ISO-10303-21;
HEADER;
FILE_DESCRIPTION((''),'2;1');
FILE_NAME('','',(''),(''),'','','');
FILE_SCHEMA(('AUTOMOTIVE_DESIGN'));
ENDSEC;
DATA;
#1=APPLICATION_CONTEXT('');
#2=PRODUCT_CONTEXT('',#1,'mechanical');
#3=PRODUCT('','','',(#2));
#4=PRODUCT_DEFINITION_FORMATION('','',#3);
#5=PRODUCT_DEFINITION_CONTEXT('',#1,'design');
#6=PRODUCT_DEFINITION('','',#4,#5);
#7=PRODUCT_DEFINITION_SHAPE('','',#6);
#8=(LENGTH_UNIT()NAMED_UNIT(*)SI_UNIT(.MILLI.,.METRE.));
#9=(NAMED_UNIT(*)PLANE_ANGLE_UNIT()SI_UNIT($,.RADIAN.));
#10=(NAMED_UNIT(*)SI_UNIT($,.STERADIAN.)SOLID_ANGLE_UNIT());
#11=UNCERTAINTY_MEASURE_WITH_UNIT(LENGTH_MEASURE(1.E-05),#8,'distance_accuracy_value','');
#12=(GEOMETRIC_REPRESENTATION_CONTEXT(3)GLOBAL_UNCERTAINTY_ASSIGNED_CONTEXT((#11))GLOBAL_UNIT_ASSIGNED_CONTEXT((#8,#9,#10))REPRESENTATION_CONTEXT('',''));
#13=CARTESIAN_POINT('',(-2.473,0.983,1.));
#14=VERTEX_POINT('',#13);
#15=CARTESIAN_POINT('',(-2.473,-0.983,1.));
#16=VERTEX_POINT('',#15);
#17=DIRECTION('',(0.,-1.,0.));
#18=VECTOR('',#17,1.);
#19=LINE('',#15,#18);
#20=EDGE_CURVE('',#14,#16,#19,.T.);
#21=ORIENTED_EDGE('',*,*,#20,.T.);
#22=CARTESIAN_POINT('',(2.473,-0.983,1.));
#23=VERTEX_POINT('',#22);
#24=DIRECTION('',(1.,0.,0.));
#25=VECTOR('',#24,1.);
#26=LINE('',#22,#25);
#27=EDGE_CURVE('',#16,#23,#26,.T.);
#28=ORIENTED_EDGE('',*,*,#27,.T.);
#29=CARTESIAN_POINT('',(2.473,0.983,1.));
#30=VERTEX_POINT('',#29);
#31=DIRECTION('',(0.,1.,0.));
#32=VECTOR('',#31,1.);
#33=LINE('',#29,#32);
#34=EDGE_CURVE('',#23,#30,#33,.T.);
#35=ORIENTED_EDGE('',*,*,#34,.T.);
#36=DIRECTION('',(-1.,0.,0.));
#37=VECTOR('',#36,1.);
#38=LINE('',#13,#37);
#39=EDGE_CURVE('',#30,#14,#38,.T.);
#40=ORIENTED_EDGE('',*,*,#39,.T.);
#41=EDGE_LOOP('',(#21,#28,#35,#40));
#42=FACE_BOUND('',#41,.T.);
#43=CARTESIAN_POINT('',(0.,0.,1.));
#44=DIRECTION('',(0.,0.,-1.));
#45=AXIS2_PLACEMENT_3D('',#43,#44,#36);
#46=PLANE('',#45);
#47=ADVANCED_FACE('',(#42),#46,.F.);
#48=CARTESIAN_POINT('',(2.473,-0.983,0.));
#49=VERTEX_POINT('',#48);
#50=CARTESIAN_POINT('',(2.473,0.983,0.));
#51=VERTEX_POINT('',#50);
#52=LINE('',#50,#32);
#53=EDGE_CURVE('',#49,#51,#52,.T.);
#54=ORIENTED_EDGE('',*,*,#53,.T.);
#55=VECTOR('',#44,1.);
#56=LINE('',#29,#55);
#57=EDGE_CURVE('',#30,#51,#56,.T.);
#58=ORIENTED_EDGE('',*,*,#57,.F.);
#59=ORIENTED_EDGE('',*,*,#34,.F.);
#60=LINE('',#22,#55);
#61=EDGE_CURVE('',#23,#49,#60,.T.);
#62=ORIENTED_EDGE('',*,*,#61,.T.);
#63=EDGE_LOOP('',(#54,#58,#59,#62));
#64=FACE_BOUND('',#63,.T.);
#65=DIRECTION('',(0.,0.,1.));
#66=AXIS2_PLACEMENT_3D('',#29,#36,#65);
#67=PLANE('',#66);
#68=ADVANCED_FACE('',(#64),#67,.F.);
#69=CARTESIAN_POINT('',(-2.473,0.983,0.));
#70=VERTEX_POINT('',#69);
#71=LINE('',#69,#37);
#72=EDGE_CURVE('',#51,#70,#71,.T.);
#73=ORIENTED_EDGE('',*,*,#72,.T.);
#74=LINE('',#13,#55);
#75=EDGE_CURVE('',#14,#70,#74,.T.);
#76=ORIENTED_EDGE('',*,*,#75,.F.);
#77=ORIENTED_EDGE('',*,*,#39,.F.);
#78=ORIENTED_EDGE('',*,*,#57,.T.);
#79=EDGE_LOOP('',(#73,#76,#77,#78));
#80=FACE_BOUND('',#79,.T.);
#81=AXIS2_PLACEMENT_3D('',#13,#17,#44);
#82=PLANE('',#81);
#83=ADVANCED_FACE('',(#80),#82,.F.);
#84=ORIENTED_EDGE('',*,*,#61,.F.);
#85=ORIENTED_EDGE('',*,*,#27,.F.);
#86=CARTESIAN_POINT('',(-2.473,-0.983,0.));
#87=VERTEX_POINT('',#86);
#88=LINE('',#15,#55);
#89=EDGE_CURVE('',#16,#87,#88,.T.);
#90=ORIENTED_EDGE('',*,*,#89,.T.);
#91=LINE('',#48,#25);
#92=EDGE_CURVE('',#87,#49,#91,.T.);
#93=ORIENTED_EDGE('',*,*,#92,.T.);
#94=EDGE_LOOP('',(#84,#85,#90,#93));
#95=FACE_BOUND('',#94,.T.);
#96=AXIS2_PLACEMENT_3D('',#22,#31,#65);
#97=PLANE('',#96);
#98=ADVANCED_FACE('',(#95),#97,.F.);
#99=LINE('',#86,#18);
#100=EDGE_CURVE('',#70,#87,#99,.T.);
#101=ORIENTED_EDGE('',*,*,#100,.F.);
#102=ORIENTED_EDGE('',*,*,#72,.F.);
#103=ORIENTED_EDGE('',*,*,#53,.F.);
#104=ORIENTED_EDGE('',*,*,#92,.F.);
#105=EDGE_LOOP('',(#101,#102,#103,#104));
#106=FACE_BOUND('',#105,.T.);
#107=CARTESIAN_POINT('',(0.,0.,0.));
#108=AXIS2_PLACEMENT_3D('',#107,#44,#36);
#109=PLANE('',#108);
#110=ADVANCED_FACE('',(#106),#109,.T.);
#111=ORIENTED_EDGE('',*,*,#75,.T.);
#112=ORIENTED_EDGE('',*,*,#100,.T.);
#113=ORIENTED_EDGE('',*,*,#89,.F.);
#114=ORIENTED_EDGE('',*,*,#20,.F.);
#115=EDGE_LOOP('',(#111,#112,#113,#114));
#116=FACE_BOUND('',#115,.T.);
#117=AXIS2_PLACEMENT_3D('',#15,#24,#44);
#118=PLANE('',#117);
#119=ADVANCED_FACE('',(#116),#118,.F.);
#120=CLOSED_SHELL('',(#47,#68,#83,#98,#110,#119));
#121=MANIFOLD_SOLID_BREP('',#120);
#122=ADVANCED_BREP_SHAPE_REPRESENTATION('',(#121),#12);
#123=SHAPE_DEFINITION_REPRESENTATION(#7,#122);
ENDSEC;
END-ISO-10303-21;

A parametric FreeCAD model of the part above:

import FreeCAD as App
import Part
import Sketcher


def add_polygon(sketch, points):
    """Adds a closed chain of lines whose ends are joined by coincident constraints."""
    first, n = sketch.GeometryCount, len(points)
    for a, b in zip(points, points[1:] + points[:1]):
        sketch.addGeometry(Part.LineSegment(App.Vector(*a, 0), App.Vector(*b, 0)), False)
    for i in range(n):
        sketch.addConstraint(Sketcher.Constraint("Coincident", first + i, 2, first + (i + 1) % n, 1))

doc = App.newDocument("Part")
body = doc.addObject("PartDesign::Body", "Body")

sketch1 = body.newObject("Sketcher::SketchObject", "Sketch")
sketch1.AttachmentSupport = (doc.getObject("XY_Plane"), [""])
sketch1.MapMode = "FlatFace"
add_polygon(sketch1, [(-2.5, 1), (-2.5, -1), (2.5, -1), (2.5, 1)])
sketch1.addConstraint([
    Sketcher.Constraint("Vertical", 0),
    Sketcher.Constraint("Horizontal", 1),
    Sketcher.Constraint("Vertical", 2),
    Sketcher.Constraint("Horizontal", 3),
    Sketcher.Constraint("Symmetric", 0, 2, 2, 2, -1, 1),
    Sketcher.Constraint("DistanceX", 1, 1, 1, 2, 4.946),
    Sketcher.Constraint("DistanceY", 0, 2, 0, 1, 1.966),
])
pad1 = body.newObject("PartDesign::Pad", "Pad")
pad1.Profile = sketch1
pad1.Length = 1

doc.recompute()
